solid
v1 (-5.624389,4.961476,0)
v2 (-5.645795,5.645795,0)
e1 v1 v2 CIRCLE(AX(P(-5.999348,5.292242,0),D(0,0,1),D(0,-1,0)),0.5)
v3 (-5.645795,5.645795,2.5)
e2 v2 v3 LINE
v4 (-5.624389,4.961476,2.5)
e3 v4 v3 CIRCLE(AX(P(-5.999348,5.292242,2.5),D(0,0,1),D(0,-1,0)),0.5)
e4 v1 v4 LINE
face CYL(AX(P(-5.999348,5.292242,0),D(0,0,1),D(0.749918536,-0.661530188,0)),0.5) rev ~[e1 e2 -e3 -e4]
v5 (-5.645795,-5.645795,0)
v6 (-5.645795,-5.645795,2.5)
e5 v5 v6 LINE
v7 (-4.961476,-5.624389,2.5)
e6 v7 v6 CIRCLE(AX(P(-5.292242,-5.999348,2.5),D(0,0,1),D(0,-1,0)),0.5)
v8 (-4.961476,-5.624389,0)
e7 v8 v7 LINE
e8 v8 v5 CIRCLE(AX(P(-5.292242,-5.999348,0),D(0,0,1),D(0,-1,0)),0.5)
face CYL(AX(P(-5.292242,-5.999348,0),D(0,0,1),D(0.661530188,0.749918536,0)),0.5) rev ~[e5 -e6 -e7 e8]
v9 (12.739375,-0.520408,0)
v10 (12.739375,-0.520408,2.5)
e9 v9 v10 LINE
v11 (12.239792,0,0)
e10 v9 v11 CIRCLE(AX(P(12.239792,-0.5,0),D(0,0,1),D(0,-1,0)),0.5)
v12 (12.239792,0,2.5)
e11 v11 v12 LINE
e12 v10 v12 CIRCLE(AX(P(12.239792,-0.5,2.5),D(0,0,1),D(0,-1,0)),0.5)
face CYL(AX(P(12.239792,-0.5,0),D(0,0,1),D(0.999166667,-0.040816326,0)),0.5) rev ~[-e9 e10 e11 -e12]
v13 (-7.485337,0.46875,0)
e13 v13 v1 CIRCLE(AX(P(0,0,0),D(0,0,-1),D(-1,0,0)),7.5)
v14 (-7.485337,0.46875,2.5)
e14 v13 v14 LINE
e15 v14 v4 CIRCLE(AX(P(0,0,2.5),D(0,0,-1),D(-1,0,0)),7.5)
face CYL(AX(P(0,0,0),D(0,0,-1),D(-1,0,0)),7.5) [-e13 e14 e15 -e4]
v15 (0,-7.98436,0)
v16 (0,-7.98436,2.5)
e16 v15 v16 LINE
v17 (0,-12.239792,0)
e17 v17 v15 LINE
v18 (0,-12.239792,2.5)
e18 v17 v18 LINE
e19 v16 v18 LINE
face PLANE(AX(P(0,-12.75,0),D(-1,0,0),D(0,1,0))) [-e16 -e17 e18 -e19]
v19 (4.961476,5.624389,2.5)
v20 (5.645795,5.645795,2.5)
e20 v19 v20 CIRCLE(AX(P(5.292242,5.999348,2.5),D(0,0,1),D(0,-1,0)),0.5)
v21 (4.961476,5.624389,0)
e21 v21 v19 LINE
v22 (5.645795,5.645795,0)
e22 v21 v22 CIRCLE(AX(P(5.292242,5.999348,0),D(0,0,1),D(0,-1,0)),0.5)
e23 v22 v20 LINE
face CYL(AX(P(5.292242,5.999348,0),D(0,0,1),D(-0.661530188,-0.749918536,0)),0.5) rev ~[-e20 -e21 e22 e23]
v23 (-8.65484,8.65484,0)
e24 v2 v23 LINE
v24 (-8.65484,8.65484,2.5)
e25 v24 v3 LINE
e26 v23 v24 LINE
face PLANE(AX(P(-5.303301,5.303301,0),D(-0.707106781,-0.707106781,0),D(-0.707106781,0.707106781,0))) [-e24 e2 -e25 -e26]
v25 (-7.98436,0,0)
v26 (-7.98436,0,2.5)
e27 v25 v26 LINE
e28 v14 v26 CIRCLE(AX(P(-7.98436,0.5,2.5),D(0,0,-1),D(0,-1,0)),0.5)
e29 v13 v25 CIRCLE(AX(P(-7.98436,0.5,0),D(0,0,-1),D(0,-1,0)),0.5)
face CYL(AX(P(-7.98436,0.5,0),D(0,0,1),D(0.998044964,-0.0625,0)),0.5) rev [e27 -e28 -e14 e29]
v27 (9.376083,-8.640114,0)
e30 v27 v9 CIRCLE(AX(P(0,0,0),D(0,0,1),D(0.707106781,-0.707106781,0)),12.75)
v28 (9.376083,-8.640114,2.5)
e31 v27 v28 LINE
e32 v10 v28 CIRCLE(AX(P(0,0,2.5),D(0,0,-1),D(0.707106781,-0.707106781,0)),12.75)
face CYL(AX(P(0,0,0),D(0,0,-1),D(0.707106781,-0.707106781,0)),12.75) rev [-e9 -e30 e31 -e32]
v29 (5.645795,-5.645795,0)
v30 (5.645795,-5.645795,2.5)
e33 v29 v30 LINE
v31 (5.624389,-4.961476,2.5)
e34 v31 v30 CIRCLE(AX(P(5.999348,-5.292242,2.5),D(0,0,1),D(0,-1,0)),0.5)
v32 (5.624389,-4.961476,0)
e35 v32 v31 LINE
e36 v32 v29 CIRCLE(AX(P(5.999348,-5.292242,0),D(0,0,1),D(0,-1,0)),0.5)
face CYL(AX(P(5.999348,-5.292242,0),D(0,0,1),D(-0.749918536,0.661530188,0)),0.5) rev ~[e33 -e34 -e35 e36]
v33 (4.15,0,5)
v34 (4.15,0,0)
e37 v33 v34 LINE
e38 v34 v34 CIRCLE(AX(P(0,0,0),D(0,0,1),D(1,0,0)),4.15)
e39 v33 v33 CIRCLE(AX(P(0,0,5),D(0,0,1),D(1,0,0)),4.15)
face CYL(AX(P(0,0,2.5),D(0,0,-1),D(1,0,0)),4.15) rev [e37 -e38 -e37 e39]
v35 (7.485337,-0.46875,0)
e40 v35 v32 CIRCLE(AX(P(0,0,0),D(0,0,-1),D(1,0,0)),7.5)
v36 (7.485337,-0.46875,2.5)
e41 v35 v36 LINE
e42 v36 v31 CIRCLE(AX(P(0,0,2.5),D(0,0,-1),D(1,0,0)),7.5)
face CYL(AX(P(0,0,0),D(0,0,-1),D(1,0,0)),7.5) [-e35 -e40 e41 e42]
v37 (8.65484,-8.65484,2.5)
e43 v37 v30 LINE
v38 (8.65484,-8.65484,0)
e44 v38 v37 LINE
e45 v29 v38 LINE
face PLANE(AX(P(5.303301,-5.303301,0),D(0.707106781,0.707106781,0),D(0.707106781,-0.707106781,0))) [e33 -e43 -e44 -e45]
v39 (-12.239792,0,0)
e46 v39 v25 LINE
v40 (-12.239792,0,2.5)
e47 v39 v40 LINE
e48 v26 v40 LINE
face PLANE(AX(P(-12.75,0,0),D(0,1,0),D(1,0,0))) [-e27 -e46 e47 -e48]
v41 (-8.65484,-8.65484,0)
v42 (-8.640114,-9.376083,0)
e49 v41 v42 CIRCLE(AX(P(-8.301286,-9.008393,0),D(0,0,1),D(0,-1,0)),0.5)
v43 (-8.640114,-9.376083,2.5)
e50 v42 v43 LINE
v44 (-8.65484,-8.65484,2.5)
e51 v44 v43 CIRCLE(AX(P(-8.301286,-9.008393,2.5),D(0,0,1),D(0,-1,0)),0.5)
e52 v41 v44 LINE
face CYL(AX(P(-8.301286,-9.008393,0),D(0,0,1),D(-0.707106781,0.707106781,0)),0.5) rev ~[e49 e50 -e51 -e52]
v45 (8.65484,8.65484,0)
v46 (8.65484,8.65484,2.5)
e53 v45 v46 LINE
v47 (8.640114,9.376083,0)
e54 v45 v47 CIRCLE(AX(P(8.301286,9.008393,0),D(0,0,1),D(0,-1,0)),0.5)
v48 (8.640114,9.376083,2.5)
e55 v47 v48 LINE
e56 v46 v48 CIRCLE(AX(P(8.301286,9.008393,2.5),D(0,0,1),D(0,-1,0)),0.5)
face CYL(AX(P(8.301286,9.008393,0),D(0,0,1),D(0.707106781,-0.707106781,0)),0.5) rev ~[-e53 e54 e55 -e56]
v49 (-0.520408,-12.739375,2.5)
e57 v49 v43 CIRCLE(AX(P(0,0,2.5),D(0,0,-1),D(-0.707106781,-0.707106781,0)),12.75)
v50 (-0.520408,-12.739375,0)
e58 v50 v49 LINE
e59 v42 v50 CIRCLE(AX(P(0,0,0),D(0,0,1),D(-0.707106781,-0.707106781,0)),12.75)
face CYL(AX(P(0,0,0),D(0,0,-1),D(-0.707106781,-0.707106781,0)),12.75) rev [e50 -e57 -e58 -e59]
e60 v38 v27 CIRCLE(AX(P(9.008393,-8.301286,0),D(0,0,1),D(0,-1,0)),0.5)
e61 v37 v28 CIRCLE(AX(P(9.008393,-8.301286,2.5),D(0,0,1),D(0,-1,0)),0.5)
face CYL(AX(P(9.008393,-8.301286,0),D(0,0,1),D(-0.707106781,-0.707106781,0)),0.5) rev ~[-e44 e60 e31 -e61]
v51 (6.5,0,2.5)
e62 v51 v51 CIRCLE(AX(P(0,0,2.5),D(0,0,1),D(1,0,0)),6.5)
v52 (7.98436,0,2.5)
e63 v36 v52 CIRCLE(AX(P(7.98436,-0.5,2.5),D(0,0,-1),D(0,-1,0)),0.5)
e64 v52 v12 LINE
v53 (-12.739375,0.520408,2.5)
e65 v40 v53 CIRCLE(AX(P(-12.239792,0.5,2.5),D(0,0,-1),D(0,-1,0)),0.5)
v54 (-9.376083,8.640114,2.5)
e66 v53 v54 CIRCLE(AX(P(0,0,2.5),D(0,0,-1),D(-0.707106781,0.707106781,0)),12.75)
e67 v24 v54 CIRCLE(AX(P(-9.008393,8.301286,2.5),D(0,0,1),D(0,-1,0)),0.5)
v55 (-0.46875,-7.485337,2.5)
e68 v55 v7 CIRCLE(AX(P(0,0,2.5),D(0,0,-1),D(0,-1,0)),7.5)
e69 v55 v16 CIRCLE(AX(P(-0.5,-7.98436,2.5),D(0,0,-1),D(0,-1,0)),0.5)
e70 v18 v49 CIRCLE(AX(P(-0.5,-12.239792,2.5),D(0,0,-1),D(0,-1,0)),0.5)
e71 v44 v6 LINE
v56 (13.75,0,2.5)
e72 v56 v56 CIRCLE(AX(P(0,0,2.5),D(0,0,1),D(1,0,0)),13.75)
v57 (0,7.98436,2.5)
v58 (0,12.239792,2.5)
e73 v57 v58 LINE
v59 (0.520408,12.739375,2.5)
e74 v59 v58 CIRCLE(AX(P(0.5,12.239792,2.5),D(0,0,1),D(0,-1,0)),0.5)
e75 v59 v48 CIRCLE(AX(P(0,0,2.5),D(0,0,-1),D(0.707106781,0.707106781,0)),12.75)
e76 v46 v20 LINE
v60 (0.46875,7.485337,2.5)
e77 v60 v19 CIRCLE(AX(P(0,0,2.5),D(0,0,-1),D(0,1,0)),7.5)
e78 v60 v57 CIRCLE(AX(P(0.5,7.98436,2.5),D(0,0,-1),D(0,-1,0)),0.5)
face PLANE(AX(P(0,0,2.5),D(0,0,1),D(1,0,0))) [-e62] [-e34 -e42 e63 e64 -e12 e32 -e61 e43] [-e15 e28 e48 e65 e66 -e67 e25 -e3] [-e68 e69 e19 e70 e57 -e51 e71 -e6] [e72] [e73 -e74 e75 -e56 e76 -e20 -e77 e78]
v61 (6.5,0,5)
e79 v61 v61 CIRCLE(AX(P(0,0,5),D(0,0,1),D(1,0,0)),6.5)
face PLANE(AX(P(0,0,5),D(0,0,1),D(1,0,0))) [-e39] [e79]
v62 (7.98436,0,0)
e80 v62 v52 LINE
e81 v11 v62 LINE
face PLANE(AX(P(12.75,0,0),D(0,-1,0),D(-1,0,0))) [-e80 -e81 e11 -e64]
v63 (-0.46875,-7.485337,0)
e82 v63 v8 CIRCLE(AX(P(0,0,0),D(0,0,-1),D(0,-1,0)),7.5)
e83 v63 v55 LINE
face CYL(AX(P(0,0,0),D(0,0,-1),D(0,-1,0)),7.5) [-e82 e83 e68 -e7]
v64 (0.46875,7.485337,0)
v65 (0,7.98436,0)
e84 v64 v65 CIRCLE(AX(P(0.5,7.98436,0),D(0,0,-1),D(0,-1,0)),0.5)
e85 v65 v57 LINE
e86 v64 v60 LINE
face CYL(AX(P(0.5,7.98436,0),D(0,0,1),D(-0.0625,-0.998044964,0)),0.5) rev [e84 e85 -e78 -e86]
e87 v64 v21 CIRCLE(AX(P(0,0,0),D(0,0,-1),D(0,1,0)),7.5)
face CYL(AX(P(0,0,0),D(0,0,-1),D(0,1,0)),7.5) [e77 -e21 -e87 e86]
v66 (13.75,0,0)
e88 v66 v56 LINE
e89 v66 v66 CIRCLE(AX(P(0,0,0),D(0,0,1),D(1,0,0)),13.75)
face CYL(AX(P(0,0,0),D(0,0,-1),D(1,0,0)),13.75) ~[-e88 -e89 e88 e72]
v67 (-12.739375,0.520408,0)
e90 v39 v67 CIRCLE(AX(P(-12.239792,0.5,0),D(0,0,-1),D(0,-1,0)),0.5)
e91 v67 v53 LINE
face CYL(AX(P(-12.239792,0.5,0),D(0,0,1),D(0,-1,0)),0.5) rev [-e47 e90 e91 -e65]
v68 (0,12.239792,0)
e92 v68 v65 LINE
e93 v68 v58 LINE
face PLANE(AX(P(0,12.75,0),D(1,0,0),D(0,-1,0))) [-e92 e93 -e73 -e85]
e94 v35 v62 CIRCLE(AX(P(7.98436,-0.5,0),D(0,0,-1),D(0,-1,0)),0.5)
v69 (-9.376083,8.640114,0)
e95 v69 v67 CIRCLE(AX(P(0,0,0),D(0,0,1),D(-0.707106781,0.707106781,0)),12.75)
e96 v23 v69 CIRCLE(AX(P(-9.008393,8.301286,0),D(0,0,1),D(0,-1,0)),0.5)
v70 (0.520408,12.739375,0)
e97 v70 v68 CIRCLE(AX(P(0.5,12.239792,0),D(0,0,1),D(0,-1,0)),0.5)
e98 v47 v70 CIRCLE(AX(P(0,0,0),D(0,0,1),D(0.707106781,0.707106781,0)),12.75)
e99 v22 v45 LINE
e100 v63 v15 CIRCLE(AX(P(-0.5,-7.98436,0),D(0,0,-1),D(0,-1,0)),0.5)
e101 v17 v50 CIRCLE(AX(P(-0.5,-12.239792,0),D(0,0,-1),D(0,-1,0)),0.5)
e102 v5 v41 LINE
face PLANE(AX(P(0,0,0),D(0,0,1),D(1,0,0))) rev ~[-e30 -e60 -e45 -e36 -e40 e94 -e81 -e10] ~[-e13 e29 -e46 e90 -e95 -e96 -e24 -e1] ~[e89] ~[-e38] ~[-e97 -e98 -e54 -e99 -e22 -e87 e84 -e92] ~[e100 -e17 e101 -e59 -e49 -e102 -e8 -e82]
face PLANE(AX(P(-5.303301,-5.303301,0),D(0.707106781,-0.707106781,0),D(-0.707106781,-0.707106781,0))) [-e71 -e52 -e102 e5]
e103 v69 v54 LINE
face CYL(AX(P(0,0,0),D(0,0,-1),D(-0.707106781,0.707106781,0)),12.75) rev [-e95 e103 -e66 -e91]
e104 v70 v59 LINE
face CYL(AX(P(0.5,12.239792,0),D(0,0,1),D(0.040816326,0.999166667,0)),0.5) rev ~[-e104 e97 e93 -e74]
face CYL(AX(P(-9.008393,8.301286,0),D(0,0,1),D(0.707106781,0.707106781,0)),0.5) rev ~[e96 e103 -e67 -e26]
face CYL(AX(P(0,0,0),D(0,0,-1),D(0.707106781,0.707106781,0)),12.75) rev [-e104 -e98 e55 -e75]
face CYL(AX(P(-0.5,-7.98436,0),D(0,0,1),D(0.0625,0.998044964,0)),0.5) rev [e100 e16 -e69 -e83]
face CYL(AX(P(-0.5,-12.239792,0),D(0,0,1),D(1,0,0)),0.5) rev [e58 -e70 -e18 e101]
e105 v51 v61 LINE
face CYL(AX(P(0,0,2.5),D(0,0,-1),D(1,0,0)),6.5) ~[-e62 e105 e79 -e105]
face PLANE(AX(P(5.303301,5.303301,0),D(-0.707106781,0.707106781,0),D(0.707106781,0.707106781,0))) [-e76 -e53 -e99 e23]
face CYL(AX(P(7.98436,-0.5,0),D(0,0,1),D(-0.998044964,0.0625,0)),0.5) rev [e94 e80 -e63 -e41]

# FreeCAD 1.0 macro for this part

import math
import FreeCAD as App
import Part
import Sketcher
from FreeCAD import Vector
Q = App.Units.Quantity


def edges_at(feature, points):
    """Names of the edges that pass closest to the given points."""
    edges = feature.Shape.Edges
    near = lambda p: min(range(len(edges)), key=lambda i: edges[i].distToShape(Part.Vertex(*p))[0])
    return sorted({f"Edge{near(p) + 1}" for p in points})

doc = App.newDocument("Part")
body = doc.addObject("PartDesign::Body", "Body")

# Sketch on XY plane
sketch1 = body.newObject("Sketcher::SketchObject", "Sketch")
sketch1.AttachmentSupport = (doc.getObject("XY_Plane"), [""])
sketch1.MapMode = "FlatFace"
sketch1.addGeometry([
    Part.Circle(Vector(0, 0, 0), Vector(0, 0, 1), 13.8),
    Part.Circle(Vector(0, 0, 0), Vector(0, 0, 1), 4.2),
], False)
sketch1.addConstraint([
    Sketcher.Constraint("Coincident", 0, 3, -1, 1),
    Sketcher.Constraint("Coincident", 1, 3, -1, 1),
    Sketcher.Constraint("Diameter", 0, Q("27.5 mm")),
    Sketcher.Constraint("Diameter", 1, Q("8.3 mm")),
])
pad1 = body.newObject("PartDesign::Pad", "Pad")
pad1.Profile = sketch1
pad1.Length = 2.5

# Sketch on XY plane
sketch2 = body.newObject("Sketcher::SketchObject", "Sketch001")
sketch2.AttachmentSupport = (doc.getObject("XY_Plane"), [""])
sketch2.MapMode = "FlatFace"
sketch2.AttachmentOffset = App.Placement(Vector(0, 0, 2.5), App.Rotation())
sketch2.addGeometry([
    Part.Circle(Vector(0, 0, 0), Vector(0, 0, 1), 6.5),
    Part.Circle(Vector(0, 0, 0), Vector(0, 0, 1), 4.2),
], False)
sketch2.addConstraint([
    Sketcher.Constraint("Coincident", 0, 3, -1, 1),
    Sketcher.Constraint("Coincident", 1, 3, -1, 1),
    Sketcher.Constraint("Diameter", 0, Q("13 mm")),
    Sketcher.Constraint("Diameter", 1, Q("8.3 mm")),
])
pad2 = body.newObject("PartDesign::Pad", "Pad001")
pad2.Profile = sketch2
pad2.Length = 2.5

# Sketch on XY plane
sketch3 = body.newObject("Sketcher::SketchObject", "Sketch002")
sketch3.AttachmentSupport = (doc.getObject("XY_Plane"), [""])
sketch3.MapMode = "FlatFace"
sketch3.addGeometry([
    Part.LineSegment(Vector(0, 13, 0), Vector(0, 8, 0)),
    Part.ArcOfCircle(Part.Circle(Vector(0, 0, 0), Vector(0, 0, 1), 7), math.radians(45), math.radians(90)),
    Part.LineSegment(Vector(5, 5, 0), Vector(9, 9, 0)),
    Part.ArcOfCircle(Part.Circle(Vector(0, 0, 0), Vector(0, 0, 1), 13), math.radians(45), math.radians(90)),
], False)
sketch3.addConstraint([
    Sketcher.Constraint("Coincident", 0, 2, 1, 2),
    Sketcher.Constraint("Coincident", 1, 1, 2, 1),
    Sketcher.Constraint("Coincident", 2, 2, 3, 1),
    Sketcher.Constraint("Coincident", 3, 2, 0, 1),
    Sketcher.Constraint("Vertical", 0),
    Sketcher.Constraint("Coincident", 1, 3, -1, 1),
    Sketcher.Constraint("Coincident", 3, 3, -1, 1),
    Sketcher.Constraint("PointOnObject", 0, 2, -2),
    Sketcher.Constraint("Radius", 1, Q("7.5 mm")),
    Sketcher.Constraint("Angle", 2, Q("45 deg")),
    Sketcher.Constraint("Radius", 3, Q("12.75 mm")),
    Sketcher.Constraint("DistanceX", -1, 1, 1, 1, Q("5.303301 mm")),
])
pocket1 = body.newObject("PartDesign::Pocket", "Pocket")
pocket1.Profile = sketch3
pocket1.Type = "ThroughAll"
pocket1.Reversed = True
doc.recompute()

fillet = body.newObject("PartDesign::Fillet", "Fillet")
fillet.Base = (pocket1, edges_at(pocket1, [
    (0, 7.5, 1.25),
    (5.303, 5.303, 1.25),
    (9.016, 9.016, 1.25),
    (0, 12.75, 1.25),
]))
fillet.Radius = 0.5
doc.recompute()

polarpattern = body.newObject("PartDesign::PolarPattern", "PolarPattern")
polarpattern.Originals = [pocket1]
polarpattern.Axis = (doc.getObject("Z_Axis"), [""])
polarpattern.Angle = 360
polarpattern.Occurrences = 4
body.Tip = polarpattern
doc.recompute()

fillet2 = body.newObject("PartDesign::Fillet", "Fillet001")
fillet2.Base = (polarpattern, edges_at(polarpattern, [
    (-7.5, 0, 1.25),
    (-5.303, 5.303, 1.25),
    (-9.016, 9.016, 1.25),
    (-12.75, 0, 1.25),
    (0, -7.5, 1.25),
    (-5.303, -5.303, 1.25),
    (-9.016, -9.016, 1.25),
    (0, -12.75, 1.25),
    (7.5, 0, 1.25),
    (5.303, -5.303, 1.25),
    (9.016, -9.016, 1.25),
    (12.75, 0, 1.25),
]))
fillet2.Radius = 0.5

doc.recompute()
